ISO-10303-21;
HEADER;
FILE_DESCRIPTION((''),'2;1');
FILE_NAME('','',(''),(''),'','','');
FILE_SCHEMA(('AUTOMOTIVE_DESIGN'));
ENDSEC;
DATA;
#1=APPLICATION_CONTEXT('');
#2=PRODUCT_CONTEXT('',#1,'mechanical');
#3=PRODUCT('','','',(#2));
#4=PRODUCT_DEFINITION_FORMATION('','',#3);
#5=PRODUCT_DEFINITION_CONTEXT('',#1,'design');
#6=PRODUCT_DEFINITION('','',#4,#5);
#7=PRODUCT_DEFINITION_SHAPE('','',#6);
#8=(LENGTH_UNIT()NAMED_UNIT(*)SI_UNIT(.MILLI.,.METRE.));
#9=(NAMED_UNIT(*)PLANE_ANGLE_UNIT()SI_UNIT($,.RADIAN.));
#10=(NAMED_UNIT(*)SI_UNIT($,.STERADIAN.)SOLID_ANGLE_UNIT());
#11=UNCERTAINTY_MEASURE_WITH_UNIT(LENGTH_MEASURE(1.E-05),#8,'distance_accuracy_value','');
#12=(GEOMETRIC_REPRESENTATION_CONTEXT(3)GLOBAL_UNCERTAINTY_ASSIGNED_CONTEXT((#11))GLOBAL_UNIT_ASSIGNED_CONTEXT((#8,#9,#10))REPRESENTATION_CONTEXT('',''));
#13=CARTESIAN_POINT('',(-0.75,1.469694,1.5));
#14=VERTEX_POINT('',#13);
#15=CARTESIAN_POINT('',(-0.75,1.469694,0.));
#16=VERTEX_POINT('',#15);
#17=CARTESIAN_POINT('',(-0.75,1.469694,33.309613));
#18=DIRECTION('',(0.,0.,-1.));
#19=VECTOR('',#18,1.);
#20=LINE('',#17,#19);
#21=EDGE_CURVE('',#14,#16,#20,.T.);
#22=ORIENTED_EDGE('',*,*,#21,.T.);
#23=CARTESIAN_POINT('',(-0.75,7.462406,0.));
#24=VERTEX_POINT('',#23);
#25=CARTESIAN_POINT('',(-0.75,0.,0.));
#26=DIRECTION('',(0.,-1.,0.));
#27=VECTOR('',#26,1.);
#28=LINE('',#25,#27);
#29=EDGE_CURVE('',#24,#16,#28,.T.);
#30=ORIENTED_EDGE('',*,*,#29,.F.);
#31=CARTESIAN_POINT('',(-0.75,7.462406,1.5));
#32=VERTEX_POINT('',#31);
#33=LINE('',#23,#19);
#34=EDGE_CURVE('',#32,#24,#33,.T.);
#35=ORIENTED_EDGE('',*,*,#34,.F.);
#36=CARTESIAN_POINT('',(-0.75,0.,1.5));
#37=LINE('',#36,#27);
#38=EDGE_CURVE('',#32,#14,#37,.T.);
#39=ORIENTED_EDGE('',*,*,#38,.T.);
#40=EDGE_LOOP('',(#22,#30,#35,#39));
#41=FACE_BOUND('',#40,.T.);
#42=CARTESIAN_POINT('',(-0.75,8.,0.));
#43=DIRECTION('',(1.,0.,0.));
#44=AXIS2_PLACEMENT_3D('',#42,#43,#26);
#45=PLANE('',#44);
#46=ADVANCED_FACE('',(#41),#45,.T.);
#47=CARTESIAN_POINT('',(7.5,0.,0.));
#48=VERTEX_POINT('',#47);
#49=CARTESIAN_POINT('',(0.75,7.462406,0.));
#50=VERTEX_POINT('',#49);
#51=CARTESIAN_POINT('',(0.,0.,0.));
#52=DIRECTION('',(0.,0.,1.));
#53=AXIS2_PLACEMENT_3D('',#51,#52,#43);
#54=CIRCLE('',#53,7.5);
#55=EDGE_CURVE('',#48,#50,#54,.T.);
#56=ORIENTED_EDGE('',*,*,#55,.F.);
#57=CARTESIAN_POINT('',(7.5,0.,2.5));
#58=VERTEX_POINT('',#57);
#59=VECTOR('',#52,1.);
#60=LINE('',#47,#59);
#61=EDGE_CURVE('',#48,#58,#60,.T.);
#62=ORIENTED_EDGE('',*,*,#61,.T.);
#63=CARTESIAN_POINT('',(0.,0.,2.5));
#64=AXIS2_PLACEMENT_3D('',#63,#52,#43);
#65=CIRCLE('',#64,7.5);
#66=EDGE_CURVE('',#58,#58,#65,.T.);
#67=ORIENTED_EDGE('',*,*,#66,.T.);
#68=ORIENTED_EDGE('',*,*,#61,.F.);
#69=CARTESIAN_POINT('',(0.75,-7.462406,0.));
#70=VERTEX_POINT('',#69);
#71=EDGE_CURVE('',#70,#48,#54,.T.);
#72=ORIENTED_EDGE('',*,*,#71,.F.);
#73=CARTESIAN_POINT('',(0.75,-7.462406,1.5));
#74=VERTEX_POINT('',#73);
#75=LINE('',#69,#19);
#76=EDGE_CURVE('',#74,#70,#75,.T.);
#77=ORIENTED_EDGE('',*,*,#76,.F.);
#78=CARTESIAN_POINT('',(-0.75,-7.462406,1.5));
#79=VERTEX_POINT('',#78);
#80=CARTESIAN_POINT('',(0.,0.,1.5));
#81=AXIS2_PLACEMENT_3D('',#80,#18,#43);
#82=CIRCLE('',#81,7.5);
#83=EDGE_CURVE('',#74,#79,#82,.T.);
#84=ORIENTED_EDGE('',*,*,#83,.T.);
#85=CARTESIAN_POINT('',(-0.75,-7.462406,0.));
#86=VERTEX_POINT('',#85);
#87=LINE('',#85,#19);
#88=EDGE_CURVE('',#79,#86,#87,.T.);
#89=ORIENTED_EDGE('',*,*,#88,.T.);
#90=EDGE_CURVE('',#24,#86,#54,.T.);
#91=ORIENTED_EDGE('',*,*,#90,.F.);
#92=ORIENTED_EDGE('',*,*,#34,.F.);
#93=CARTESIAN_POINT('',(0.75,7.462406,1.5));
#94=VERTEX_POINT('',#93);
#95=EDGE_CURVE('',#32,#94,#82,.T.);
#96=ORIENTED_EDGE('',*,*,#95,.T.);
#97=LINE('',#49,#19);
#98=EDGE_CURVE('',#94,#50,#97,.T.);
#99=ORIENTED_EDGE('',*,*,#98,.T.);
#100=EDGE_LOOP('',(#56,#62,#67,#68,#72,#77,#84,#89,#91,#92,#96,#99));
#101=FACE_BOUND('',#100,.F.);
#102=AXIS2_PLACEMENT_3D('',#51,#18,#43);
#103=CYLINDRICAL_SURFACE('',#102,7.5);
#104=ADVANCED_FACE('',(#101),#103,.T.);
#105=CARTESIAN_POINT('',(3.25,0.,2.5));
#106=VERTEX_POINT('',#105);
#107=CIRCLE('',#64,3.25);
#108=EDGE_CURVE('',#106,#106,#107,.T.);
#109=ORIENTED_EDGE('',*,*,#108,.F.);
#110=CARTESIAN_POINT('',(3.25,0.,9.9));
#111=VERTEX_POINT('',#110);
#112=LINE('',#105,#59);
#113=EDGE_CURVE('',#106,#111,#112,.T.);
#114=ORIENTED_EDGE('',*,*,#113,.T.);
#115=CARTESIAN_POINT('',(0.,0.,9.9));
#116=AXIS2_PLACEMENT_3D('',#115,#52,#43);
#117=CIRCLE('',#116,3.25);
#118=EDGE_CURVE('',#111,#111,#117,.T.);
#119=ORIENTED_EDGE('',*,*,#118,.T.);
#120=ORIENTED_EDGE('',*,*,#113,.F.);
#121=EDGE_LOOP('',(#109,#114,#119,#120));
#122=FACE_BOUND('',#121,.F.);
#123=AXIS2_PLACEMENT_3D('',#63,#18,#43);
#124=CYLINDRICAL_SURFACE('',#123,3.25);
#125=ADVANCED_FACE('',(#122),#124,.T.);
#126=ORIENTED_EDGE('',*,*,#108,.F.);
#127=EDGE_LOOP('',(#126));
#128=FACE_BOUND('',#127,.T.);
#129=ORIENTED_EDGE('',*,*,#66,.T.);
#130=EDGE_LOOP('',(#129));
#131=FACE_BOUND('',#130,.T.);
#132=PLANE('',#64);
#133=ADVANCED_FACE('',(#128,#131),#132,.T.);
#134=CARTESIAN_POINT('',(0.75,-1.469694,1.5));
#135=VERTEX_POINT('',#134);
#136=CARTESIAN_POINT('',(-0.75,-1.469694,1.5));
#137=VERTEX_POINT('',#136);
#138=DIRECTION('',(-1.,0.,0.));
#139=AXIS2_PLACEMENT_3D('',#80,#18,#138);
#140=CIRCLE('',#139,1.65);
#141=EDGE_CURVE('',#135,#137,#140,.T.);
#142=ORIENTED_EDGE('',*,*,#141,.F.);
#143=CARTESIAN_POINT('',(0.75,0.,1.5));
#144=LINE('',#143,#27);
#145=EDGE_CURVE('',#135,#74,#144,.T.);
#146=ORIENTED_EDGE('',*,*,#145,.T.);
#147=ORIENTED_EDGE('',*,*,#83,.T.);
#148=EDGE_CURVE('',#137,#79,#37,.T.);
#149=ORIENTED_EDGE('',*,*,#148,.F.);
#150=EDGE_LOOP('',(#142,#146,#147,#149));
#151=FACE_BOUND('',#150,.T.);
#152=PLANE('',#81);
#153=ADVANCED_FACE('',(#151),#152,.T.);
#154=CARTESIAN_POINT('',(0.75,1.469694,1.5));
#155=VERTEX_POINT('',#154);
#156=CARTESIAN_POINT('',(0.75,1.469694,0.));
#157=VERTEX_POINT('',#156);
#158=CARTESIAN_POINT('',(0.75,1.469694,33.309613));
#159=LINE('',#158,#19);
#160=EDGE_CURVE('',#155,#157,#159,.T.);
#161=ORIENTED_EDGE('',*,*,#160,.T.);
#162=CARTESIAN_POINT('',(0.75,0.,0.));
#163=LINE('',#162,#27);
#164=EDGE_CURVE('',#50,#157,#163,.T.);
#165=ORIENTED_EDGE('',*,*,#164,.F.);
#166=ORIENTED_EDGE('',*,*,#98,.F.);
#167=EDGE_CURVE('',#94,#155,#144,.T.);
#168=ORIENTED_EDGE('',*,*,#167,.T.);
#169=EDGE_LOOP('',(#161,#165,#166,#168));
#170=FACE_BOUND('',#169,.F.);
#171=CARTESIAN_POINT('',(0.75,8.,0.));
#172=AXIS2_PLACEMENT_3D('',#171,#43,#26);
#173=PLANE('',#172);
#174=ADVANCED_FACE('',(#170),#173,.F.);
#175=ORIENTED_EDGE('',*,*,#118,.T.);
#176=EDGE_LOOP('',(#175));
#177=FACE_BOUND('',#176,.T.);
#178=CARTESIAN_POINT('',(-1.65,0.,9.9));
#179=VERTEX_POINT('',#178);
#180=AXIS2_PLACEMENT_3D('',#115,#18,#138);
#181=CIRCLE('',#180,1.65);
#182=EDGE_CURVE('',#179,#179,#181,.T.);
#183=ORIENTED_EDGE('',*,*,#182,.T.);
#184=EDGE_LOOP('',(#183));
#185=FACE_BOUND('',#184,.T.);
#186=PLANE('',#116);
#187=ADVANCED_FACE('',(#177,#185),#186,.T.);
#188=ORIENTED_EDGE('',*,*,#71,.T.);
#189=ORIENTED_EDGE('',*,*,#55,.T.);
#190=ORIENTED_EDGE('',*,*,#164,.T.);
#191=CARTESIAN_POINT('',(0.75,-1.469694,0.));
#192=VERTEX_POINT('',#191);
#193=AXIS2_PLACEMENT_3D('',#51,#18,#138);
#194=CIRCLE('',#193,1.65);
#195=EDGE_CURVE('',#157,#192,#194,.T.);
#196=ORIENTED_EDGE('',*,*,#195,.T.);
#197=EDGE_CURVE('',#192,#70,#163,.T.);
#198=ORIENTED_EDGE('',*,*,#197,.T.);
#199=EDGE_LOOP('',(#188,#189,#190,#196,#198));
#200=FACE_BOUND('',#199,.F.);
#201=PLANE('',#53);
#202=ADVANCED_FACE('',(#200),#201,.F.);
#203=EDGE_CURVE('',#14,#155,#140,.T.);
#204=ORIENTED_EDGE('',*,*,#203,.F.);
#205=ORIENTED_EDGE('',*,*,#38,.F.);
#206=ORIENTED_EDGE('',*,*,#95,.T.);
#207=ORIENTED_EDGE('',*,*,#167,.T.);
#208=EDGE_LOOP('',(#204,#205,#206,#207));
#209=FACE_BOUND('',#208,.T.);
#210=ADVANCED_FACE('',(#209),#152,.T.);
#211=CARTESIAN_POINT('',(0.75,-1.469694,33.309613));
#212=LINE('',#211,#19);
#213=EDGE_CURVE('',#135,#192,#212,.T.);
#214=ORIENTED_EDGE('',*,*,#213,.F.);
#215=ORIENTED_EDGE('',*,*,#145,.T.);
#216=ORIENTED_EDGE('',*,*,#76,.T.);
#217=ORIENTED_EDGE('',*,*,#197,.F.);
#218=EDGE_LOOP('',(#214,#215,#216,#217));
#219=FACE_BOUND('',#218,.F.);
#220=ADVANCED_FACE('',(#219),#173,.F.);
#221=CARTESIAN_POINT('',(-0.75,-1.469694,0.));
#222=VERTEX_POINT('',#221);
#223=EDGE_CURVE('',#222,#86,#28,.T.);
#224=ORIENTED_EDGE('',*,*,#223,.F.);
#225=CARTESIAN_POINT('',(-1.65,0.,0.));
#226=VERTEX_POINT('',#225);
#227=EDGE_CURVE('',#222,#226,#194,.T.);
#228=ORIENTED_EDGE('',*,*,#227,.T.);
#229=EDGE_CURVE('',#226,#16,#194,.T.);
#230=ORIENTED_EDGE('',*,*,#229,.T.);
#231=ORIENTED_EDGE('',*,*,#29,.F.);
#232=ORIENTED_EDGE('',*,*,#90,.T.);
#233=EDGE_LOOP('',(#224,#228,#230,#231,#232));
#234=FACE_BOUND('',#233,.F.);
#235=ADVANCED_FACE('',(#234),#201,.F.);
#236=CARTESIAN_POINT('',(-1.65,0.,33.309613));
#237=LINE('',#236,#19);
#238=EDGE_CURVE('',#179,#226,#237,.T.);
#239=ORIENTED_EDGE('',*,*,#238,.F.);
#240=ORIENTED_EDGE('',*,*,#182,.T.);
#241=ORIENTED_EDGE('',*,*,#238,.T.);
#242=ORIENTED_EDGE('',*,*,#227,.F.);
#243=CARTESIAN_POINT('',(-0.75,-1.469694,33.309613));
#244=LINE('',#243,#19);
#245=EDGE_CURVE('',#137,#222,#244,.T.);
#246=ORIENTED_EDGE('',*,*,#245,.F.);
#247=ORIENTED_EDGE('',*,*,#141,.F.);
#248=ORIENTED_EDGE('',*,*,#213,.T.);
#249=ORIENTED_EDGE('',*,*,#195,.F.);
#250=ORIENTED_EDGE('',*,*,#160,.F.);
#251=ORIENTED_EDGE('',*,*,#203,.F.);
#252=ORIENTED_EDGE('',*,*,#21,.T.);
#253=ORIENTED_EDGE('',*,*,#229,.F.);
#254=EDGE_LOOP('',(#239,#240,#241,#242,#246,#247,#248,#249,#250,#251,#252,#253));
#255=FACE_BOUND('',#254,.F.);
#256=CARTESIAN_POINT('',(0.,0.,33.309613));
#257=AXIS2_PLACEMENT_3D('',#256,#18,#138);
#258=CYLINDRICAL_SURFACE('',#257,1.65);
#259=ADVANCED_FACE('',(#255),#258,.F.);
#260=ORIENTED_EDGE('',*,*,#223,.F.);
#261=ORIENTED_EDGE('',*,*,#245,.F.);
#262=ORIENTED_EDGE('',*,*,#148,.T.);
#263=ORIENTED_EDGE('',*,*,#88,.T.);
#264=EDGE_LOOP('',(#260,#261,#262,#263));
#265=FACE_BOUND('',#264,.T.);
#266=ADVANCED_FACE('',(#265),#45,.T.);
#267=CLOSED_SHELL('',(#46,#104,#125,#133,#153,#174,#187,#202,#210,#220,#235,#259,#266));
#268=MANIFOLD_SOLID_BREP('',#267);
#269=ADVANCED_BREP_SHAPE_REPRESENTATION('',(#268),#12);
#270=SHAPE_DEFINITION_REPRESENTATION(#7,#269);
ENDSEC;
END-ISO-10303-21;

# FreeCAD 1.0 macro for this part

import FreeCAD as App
import Part
import Sketcher

V = App.Vector
Q = App.Units.Quantity

doc = App.newDocument("Part")
params = doc.addObject("Spreadsheet::Sheet", "Params")
for row, (alias, value) in enumerate([
    ("sketch1_diameter", "15 mm"),
    ("pad1_length", "2.5 mm"),
    ("sketch2_diameter", "6.5 mm"),
    ("pad2_length", "7.4 mm"),
    ("sketch3_height", "16 mm"),
    ("sketch3_width", "1.5 mm"),
    ("pocket1_length", "1.5 mm"),
    ("sketch4_diameter", "3.3 mm"),
    ("hole_diameter", "3.3 mm"),
], start=1):
    params.set(f"A{row}", alias)
    params.set(f"B{row}", "=" + value)
    params.setAlias(f"B{row}", alias)

body = doc.addObject("PartDesign::Body", "Body")

# Sketch on XY plane
sketch1 = doc.addObject("Sketcher::SketchObject", "Sketch")
body.addObject(sketch1)
sketch1.AttachmentSupport = (doc.XY_Plane, [""])
sketch1.MapMode = "FlatFace"
sketch1.addGeometry(Part.Circle(V(0, 0, 0), V(0, 0, 1), 8), False)
sketch1.addConstraint([
    Sketcher.Constraint("Coincident", 0, 3, -1, 1),
    Sketcher.Constraint("Diameter", 0, Q("15 mm")),
])
sketch1.setExpression("Constraints[1]", "Params.sketch1_diameter")
pad1 = doc.addObject("PartDesign::Pad", "Pad")
body.addObject(pad1)
pad1.Profile = sketch1
pad1.setExpression("Length", "Params.pad1_length")

# Sketch on XY plane
sketch2 = doc.addObject("Sketcher::SketchObject", "Sketch001")
body.addObject(sketch2)
sketch2.AttachmentSupport = (doc.XY_Plane, [""])
sketch2.MapMode = "FlatFace"
sketch2.AttachmentOffset = App.Placement(V(0, 0, 2.5), App.Rotation())
sketch2.addGeometry(Part.Circle(V(0, 0, 0), V(0, 0, 1), 3.2), False)
sketch2.addConstraint([
    Sketcher.Constraint("Coincident", 0, 3, -1, 1),
    Sketcher.Constraint("Diameter", 0, Q("6.5 mm")),
])
sketch2.setExpression("Constraints[1]", "Params.sketch2_diameter")
pad2 = doc.addObject("PartDesign::Pad", "Pad001")
body.addObject(pad2)
pad2.Profile = sketch2
pad2.setExpression("Length", "Params.pad2_length")

# Sketch on XY plane
sketch3 = doc.addObject("Sketcher::SketchObject", "Sketch002")
body.addObject(sketch3)
sketch3.AttachmentSupport = (doc.XY_Plane, [""])
sketch3.MapMode = "FlatFace"
sketch3.addGeometry([
    Part.LineSegment(V(-0.8, -8, 0), V(-0.8, 8, 0)),
    Part.LineSegment(V(-0.8, 8, 0), V(0.8, 8, 0)),
    Part.LineSegment(V(0.8, 8, 0), V(0.8, -8, 0)),
    Part.LineSegment(V(0.8, -8, 0), V(-0.8, -8, 0)),
], False)
sketch3.addConstraint([
    Sketcher.Constraint("Coincident", 0, 2, 1, 1),
    Sketcher.Constraint("Coincident", 1, 2, 2, 1),
    Sketcher.Constraint("Coincident", 2, 2, 3, 1),
    Sketcher.Constraint("Coincident", 3, 2, 0, 1),
    Sketcher.Constraint("Vertical", 0),
    Sketcher.Constraint("Horizontal", 1),
    Sketcher.Constraint("Vertical", 2),
    Sketcher.Constraint("Horizontal", 3),
    Sketcher.Constraint("Symmetric", 0, 2, 2, 2, -1, 1),
    Sketcher.Constraint("DistanceY", 0, 1, 0, 2, Q("16 mm")),
    Sketcher.Constraint("DistanceX", 1, 1, 1, 2, Q("1.5 mm")),
])
sketch3.setExpression("Constraints[9]", "Params.sketch3_height")
sketch3.setExpression("Constraints[10]", "Params.sketch3_width")
pocket1 = doc.addObject("PartDesign::Pocket", "Pocket")
body.addObject(pocket1)
pocket1.Profile = sketch3
pocket1.setExpression("Length", "Params.pocket1_length")
pocket1.Reversed = True

# Sketch on XY plane
sketch4 = doc.addObject("Sketcher::SketchObject", "Sketch003")
body.addObject(sketch4)
sketch4.AttachmentSupport = (doc.XY_Plane, [""])
sketch4.MapMode = "FlatFace"
sketch4.AttachmentOffset = App.Placement(V(0, 0, 9.9), App.Rotation())
sketch4.addGeometry(Part.Circle(V(0, 0, 0), V(0, 0, 1), 1.6), False)
sketch4.addConstraint([
    Sketcher.Constraint("Coincident", 0, 3, -1, 1),
    Sketcher.Constraint("Diameter", 0, Q("3.3 mm")),
])
sketch4.setExpression("Constraints[1]", "Params.sketch4_diameter")
doc.recompute()
hole = doc.addObject("PartDesign::Hole", "Hole")
body.addObject(hole)
hole.Profile = sketch4
hole.ThreadType = "None"
hole.setExpression("Diameter", "Params.hole_diameter")
hole.DepthType = "ThroughAll"

doc.recompute()
